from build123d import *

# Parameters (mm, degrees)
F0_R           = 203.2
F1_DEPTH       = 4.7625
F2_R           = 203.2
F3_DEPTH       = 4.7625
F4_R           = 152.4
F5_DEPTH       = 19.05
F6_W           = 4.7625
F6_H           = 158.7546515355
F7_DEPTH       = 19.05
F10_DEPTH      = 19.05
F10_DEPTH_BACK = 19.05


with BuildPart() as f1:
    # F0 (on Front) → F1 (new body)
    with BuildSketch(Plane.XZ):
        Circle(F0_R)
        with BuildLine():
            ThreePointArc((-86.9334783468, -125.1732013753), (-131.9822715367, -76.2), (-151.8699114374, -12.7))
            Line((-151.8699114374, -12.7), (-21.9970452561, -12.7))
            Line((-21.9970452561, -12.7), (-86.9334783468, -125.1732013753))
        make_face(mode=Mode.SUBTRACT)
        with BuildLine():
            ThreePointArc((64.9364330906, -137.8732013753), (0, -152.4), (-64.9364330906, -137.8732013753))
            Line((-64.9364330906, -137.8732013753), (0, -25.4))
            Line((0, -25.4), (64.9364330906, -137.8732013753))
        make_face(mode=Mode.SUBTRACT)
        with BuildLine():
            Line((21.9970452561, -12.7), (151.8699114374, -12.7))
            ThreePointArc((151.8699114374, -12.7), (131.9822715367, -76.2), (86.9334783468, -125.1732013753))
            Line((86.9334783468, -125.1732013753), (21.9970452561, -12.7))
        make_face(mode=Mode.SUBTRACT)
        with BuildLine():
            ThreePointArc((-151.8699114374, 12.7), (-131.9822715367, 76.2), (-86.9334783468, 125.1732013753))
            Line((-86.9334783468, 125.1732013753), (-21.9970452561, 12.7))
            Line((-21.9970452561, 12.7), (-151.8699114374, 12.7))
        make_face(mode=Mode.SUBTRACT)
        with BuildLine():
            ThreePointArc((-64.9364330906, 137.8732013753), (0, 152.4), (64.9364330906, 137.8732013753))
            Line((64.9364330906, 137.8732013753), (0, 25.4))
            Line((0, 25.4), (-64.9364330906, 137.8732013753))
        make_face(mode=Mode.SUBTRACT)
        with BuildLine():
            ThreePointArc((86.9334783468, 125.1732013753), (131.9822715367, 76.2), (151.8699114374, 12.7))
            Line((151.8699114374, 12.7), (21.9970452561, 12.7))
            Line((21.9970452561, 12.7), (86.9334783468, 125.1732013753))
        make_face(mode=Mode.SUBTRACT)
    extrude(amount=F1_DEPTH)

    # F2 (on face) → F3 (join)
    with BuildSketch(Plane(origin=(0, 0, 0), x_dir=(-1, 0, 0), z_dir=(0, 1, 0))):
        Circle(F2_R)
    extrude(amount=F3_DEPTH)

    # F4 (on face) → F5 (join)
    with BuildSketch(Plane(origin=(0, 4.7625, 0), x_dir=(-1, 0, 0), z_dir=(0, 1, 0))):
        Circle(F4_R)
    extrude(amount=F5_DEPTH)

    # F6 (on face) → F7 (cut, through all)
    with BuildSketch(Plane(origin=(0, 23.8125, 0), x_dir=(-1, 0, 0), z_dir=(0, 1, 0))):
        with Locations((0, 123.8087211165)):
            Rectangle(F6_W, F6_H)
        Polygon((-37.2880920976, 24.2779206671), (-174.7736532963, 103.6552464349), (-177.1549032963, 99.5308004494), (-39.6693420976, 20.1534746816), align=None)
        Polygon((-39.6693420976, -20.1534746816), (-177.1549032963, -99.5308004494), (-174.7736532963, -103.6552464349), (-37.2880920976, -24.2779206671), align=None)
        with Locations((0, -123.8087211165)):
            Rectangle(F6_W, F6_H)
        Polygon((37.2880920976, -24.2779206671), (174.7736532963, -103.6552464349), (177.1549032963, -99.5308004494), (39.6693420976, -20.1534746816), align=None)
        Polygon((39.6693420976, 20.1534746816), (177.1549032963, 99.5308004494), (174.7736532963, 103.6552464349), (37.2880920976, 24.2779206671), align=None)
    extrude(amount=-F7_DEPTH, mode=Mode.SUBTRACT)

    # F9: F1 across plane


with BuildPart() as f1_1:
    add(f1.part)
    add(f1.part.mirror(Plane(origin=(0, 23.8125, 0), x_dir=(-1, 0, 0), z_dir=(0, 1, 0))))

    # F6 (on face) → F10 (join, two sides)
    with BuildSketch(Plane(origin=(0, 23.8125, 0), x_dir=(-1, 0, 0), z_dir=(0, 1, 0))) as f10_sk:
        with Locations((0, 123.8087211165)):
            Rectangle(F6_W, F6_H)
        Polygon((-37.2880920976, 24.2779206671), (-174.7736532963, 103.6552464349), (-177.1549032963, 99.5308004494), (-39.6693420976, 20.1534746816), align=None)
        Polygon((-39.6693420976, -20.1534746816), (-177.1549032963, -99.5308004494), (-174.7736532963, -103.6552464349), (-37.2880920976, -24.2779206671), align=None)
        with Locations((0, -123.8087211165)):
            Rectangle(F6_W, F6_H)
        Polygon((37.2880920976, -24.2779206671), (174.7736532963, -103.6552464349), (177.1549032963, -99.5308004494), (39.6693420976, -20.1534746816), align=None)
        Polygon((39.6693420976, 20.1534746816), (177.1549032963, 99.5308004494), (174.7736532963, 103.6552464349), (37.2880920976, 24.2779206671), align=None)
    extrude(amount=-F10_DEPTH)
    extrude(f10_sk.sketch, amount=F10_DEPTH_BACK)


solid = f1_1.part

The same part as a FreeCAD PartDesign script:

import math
import FreeCAD as App
import Part
import Sketcher
from FreeCAD import Vector
Q = App.Units.Quantity


def add_polygon(sketch, points):
    """Adds a closed chain of lines whose ends are joined by coincident constraints."""
    first, n = sketch.GeometryCount, len(points)
    for a, b in zip(points, points[1:] + points[:1]):
        sketch.addGeometry(Part.LineSegment(App.Vector(*a, 0), App.Vector(*b, 0)), False)
    for i in range(n):
        sketch.addConstraint(Sketcher.Constraint("Coincident", first + i, 2, first + (i + 1) % n, 1))

doc = App.newDocument("Part")
body = doc.addObject("PartDesign::Body", "Body")

# Sketch on XZ plane
sketch1 = body.newObject("Sketcher::SketchObject", "Sketch")
sketch1.AttachmentSupport = (doc.getObject("XZ_Plane"), [""])
sketch1.MapMode = "FlatFace"
sketch1.addGeometry([
    Part.Circle(Vector(0, 0, 0), Vector(0, 0, 1), 203),  # 0
    Part.LineSegment(Vector(-22, -13, 0), Vector(-87, -125, 0)),  # 1
    Part.ArcOfCircle(Part.Circle(Vector(0, 0, 0), Vector(0, 0, 1), 152), math.radians(-175), math.radians(-125)),  # 2
    Part.LineSegment(Vector(-152, -13, 0), Vector(-22, -13, 0)),  # 3
    Part.LineSegment(Vector(0, -25, 0), Vector(65, -138, 0)),  # 4
    Part.ArcOfCircle(Part.Circle(Vector(0, 0, 0), Vector(0, 0, 1), 152), math.radians(-115), math.radians(-65)),  # 5
    Part.LineSegment(Vector(-65, -138, 0), Vector(0, -25, 0)),  # 6
    Part.LineSegment(Vector(87, -125, 0), Vector(22, -13, 0)),  # 7
    Part.LineSegment(Vector(22, -13, 0), Vector(152, -13, 0)),  # 8
    Part.ArcOfCircle(Part.Circle(Vector(0, 0, 0), Vector(0, 0, 1), 152), math.radians(-55), math.radians(-5)),  # 9
    Part.LineSegment(Vector(-22, 13, 0), Vector(-152, 13, 0)),  # 10
    Part.ArcOfCircle(Part.Circle(Vector(0, 0, 0), Vector(0, 0, 1), 152), math.radians(125), math.radians(175)),  # 11
    Part.LineSegment(Vector(-87, 125, 0), Vector(-22, 13, 0)),  # 12
    Part.LineSegment(Vector(22, 13, 0), Vector(87, 125, 0)),  # 13
    Part.ArcOfCircle(Part.Circle(Vector(0, 0, 0), Vector(0, 0, 1), 152), math.radians(5), math.radians(55)),  # 14
    Part.LineSegment(Vector(152, 13, 0), Vector(22, 13, 0)),  # 15
    Part.LineSegment(Vector(0, 25, 0), Vector(-65, 138, 0)),  # 16
    Part.ArcOfCircle(Part.Circle(Vector(0, 0, 0), Vector(0, 0, 1), 152), math.radians(65), math.radians(115)),  # 17
    Part.LineSegment(Vector(65, 138, 0), Vector(0, 25, 0)),  # 18
], False)
sketch1.addConstraint([
    Sketcher.Constraint("Coincident", 1, 2, 2, 2),
    Sketcher.Constraint("Coincident", 2, 1, 3, 1),
    Sketcher.Constraint("Coincident", 3, 2, 1, 1),
    Sketcher.Constraint("Coincident", 4, 2, 5, 2),
    Sketcher.Constraint("Coincident", 5, 1, 6, 1),
    Sketcher.Constraint("Coincident", 6, 2, 4, 1),
    Sketcher.Constraint("Coincident", 7, 2, 8, 1),
    Sketcher.Constraint("Coincident", 8, 2, 9, 2),
    Sketcher.Constraint("Coincident", 9, 1, 7, 1),
    Sketcher.Constraint("Coincident", 10, 2, 11, 2),
    Sketcher.Constraint("Coincident", 11, 1, 12, 1),
    Sketcher.Constraint("Coincident", 12, 2, 10, 1),
    Sketcher.Constraint("Coincident", 13, 2, 14, 2),
    Sketcher.Constraint("Coincident", 14, 1, 15, 1),
    Sketcher.Constraint("Coincident", 15, 2, 13, 1),
    Sketcher.Constraint("Coincident", 16, 2, 17, 2),
    Sketcher.Constraint("Coincident", 17, 1, 18, 1),
    Sketcher.Constraint("Coincident", 18, 2, 16, 1),
    Sketcher.Constraint("Horizontal", 3),
    Sketcher.Constraint("Horizontal", 8),
    Sketcher.Constraint("Horizontal", 10),
    Sketcher.Constraint("Horizontal", 15),
    Sketcher.Constraint("Coincident", 0, 3, -1, 1),
    Sketcher.Constraint("Coincident", 2, 3, -1, 1),
    Sketcher.Constraint("Coincident", 5, 3, -1, 1),
    Sketcher.Constraint("Coincident", 9, 3, -1, 1),
    Sketcher.Constraint("Coincident", 11, 3, -1, 1),
    Sketcher.Constraint("Coincident", 14, 3, -1, 1),
    Sketcher.Constraint("Coincident", 17, 3, -1, 1),
    Sketcher.Constraint("Equal", 2, 5),
    Sketcher.Constraint("Equal", 5, 9),
    Sketcher.Constraint("Equal", 9, 11),
    Sketcher.Constraint("Equal", 11, 14),
    Sketcher.Constraint("Equal", 14, 17),
    Sketcher.Constraint("Symmetric", 7, 2, 12, 2, -1, 1),
    Sketcher.Constraint("Symmetric", 3, 2, 15, 2, -1, 1),
    Sketcher.Constraint("Symmetric", 6, 2, 18, 2, -1, 1),
    Sketcher.Constraint("Symmetric", 3, 2, 7, 2, -2),
    Sketcher.Constraint("PointOnObject", 6, 2, -2),
    Sketcher.Constraint("Parallel", 1, 6),
    Sketcher.Constraint("Parallel", 4, 7),
    Sketcher.Constraint("Parallel", 7, 12),
    Sketcher.Constraint("Parallel", 6, 13),
    Sketcher.Constraint("Parallel", 12, 16),
    Sketcher.Constraint("Parallel", 13, 18),
    Sketcher.Constraint("Horizontal", 4, 2, 5, 1),
    Sketcher.Constraint("Equal", 1, 4),
    Sketcher.Constraint("Diameter", 0, Q("16 in")),
    Sketcher.Constraint("Radius", 2, Q("6 in")),
    Sketcher.Constraint("DistanceY", 6, 2, -1, 1, Q("1 in")),
    Sketcher.Constraint("Angle", 1, Q("-120 deg")),
    Sketcher.Constraint("DistanceY", 2, 1, 10, 2, Q("1 in")),
])
pad1 = body.newObject("PartDesign::Pad", "Pad")
pad1.Profile = sketch1
pad1.Length = Q("0.1875 in")

# Sketch on XZ plane
sketch2 = body.newObject("Sketcher::SketchObject", "Sketch001")
sketch2.AttachmentSupport = (doc.getObject("XZ_Plane"), [""])
sketch2.MapMode = "FlatFace"
sketch2.addGeometry(Part.Circle(Vector(0, 0, 0), Vector(0, 0, 1), 203), False)
sketch2.addConstraint([
    Sketcher.Constraint("Coincident", 0, 3, -1, 1),
    Sketcher.Constraint("Diameter", 0, Q("16 in")),
])
pad2 = body.newObject("PartDesign::Pad", "Pad001")
pad2.Profile = sketch2
pad2.Length = Q("0.1875 in")
pad2.Reversed = True

# Sketch on XZ plane
sketch3 = body.newObject("Sketcher::SketchObject", "Sketch002")
sketch3.AttachmentSupport = (doc.getObject("XZ_Plane"), [""])
sketch3.MapMode = "FlatFace"
sketch3.AttachmentOffset = App.Placement(Vector(0, 0, -0.1875 * 25.4), App.Rotation())
sketch3.addGeometry(Part.Circle(Vector(0, 0, 0), Vector(0, 0, 1), 152), False)
sketch3.addConstraint([
    Sketcher.Constraint("Coincident", 0, 3, -1, 1),
    Sketcher.Constraint("Diameter", 0, Q("12 in")),
])
pad3 = body.newObject("PartDesign::Pad", "Pad002")
pad3.Profile = sketch3
pad3.Length = Q("0.75 in")
pad3.Reversed = True

# Sketch on XZ plane
sketch4 = body.newObject("Sketcher::SketchObject", "Sketch003")
sketch4.AttachmentSupport = (doc.getObject("XZ_Plane"), [""])
sketch4.MapMode = "FlatFace"
sketch4.AttachmentOffset = App.Placement(Vector(0, 0, -0.9375 * 25.4), App.Rotation())
add_polygon(sketch4, [(2.4, 203.2), (2.4, 44.4), (-2.4, 44.4), (-2.4, 203.2)])  # lines 0-3
add_polygon(sketch4, [(37.3, 24.3), (174.8, 103.7), (177.2, 99.5), (39.7, 20.2)])  # lines 4-7
add_polygon(sketch4, [(39.7, -20.2), (177.2, -99.5), (174.8, -103.7), (37.3, -24.3)])  # lines 8-11
add_polygon(sketch4, [(2.4, -44.4), (2.4, -203.2), (-2.4, -203.2), (-2.4, -44.4)])  # lines 12-15
add_polygon(sketch4, [(-37.3, -24.3), (-174.8, -103.7), (-177.2, -99.5), (-39.7, -20.2)])  # lines 16-19
add_polygon(sketch4, [(-39.7, 20.2), (-177.2, 99.5), (-174.8, 103.7), (-37.3, 24.3)])  # lines 20-23
sketch4.addConstraint([
    Sketcher.Constraint("Vertical", 0),
    Sketcher.Constraint("Horizontal", 1),
    Sketcher.Constraint("Vertical", 2),
    Sketcher.Constraint("Horizontal", 3),
    Sketcher.Constraint("Vertical", 12),
    Sketcher.Constraint("Horizontal", 13),
    Sketcher.Constraint("Vertical", 14),
    Sketcher.Constraint("Horizontal", 15),
    Sketcher.Constraint("Symmetric", 2, 2, 12, 2, -1, 1),
    Sketcher.Constraint("Symmetric", 0, 2, 14, 2, -1, 1),
    Sketcher.Constraint("Symmetric", 4, 2, 16, 2, -1, 1),
    Sketcher.Constraint("Symmetric", 5, 2, 17, 2, -1, 1),
    Sketcher.Constraint("Symmetric", 6, 2, 18, 2, -1, 1),
    Sketcher.Constraint("Symmetric", 7, 2, 19, 2, -1, 1),
    Sketcher.Constraint("Symmetric", 8, 2, 20, 2, -1, 1),
    Sketcher.Constraint("Symmetric", 9, 2, 21, 2, -1, 1),
    Sketcher.Constraint("Symmetric", 10, 2, 22, 2, -1, 1),
    Sketcher.Constraint("Symmetric", 11, 2, 23, 2, -1, 1),
    Sketcher.Constraint("Symmetric", 9, 2, 16, 2, -2),
    Sketcher.Constraint("Symmetric", 8, 2, 17, 2, -2),
    Sketcher.Constraint("Symmetric", 11, 2, 18, 2, -2),
    Sketcher.Constraint("Symmetric", 10, 2, 19, 2, -2),
    Sketcher.Constraint("Perpendicular", 4, 5),
    Sketcher.Constraint("Perpendicular", 5, 6),
    Sketcher.Constraint("Perpendicular", 6, 7),
    Sketcher.Constraint("Vertical", 3, 2, 12, 2),
    Sketcher.Constraint("Angle", 4, Q("30 deg")),
    Sketcher.Constraint("DistanceX", 1, 2, 1, 1, Q("0.1875 in")),
    Sketcher.Constraint("Distance", 5, Q("0.1875 in")),
    Sketcher.Constraint("DistanceY", 0, 2, 0, 1, Q("158.754652 mm")),
    Sketcher.Constraint("DistanceY", -1, 1, 5, 2, Q("99.5308 mm")),
    Sketcher.Constraint("DistanceY", 4, 2, 3, 2, Q("99.5308 mm")),
    Sketcher.Constraint("Distance", 4, Q("158.754652 mm")),
    Sketcher.Constraint("DistanceX", -1, 1, 4, 2, Q("174.773653 mm")),
])
pocket1 = body.newObject("PartDesign::Pocket", "Pocket")
pocket1.Profile = sketch4
pocket1.Length = Q("0.75 in")
pocket1.Reversed = True
body2 = doc.addObject("PartDesign::Body", "Body001")
doc.recompute()

body2.BaseFeature = body
doc.recompute()

mirroring = doc.addObject("Part::Mirroring", "Mirroring")
mirroring.Source = body
mirroring.Base = Vector(0, 23.8125, 0)
mirroring.Normal = Vector(0, 1, 0)
body3 = doc.addObject("PartDesign::Body", "Body002")
body3.BaseFeature = mirroring
boolean = body2.newObject("PartDesign::Boolean", "Boolean")
boolean.Type = "Fuse"
boolean.addObjects([body3])
doc.recompute()

# Sketch on XZ plane
sketch5 = body2.newObject("Sketcher::SketchObject", "Sketch004")
sketch5.AttachmentSupport = (doc.getObject("XZ_Plane001"), [""])
sketch5.MapMode = "FlatFace"
sketch5.AttachmentOffset = App.Placement(Vector(0, 0, -0.9375 * 25.4), App.Rotation())
add_polygon(sketch5, [(2.4, 203.2), (2.4, 44.4), (-2.4, 44.4), (-2.4, 203.2)])  # lines 0-3
add_polygon(sketch5, [(37.3, 24.3), (174.8, 103.7), (177.2, 99.5), (39.7, 20.2)])  # lines 4-7
add_polygon(sketch5, [(39.7, -20.2), (177.2, -99.5), (174.8, -103.7), (37.3, -24.3)])  # lines 8-11
add_polygon(sketch5, [(2.4, -44.4), (2.4, -203.2), (-2.4, -203.2), (-2.4, -44.4)])  # lines 12-15
add_polygon(sketch5, [(-37.3, -24.3), (-174.8, -103.7), (-177.2, -99.5), (-39.7, -20.2)])  # lines 16-19
add_polygon(sketch5, [(-39.7, 20.2), (-177.2, 99.5), (-174.8, 103.7), (-37.3, 24.3)])  # lines 20-23
sketch5.addConstraint([
    Sketcher.Constraint("Vertical", 0),
    Sketcher.Constraint("Horizontal", 1),
    Sketcher.Constraint("Vertical", 2),
    Sketcher.Constraint("Horizontal", 3),
    Sketcher.Constraint("Vertical", 12),
    Sketcher.Constraint("Horizontal", 13),
    Sketcher.Constraint("Vertical", 14),
    Sketcher.Constraint("Horizontal", 15),
    Sketcher.Constraint("Symmetric", 2, 2, 12, 2, -1, 1),
    Sketcher.Constraint("Symmetric", 0, 2, 14, 2, -1, 1),
    Sketcher.Constraint("Symmetric", 4, 2, 16, 2, -1, 1),
    Sketcher.Constraint("Symmetric", 5, 2, 17, 2, -1, 1),
    Sketcher.Constraint("Symmetric", 6, 2, 18, 2, -1, 1),
    Sketcher.Constraint("Symmetric", 7, 2, 19, 2, -1, 1),
    Sketcher.Constraint("Symmetric", 8, 2, 20, 2, -1, 1),
    Sketcher.Constraint("Symmetric", 9, 2, 21, 2, -1, 1),
    Sketcher.Constraint("Symmetric", 10, 2, 22, 2, -1, 1),
    Sketcher.Constraint("Symmetric", 11, 2, 23, 2, -1, 1),
    Sketcher.Constraint("Symmetric", 9, 2, 16, 2, -2),
    Sketcher.Constraint("Symmetric", 8, 2, 17, 2, -2),
    Sketcher.Constraint("Symmetric", 11, 2, 18, 2, -2),
    Sketcher.Constraint("Symmetric", 10, 2, 19, 2, -2),
    Sketcher.Constraint("Perpendicular", 4, 5),
    Sketcher.Constraint("Perpendicular", 5, 6),
    Sketcher.Constraint("Perpendicular", 6, 7),
    Sketcher.Constraint("Vertical", 3, 2, 12, 2),
    Sketcher.Constraint("Angle", 4, Q("30 deg")),
    Sketcher.Constraint("DistanceX", 1, 2, 1, 1, Q("0.1875 in")),
    Sketcher.Constraint("Distance", 5, Q("0.1875 in")),
    Sketcher.Constraint("DistanceY", 0, 2, 0, 1, Q("158.754652 mm")),
    Sketcher.Constraint("DistanceY", -1, 1, 5, 2, Q("99.5308 mm")),
    Sketcher.Constraint("DistanceY", 4, 2, 3, 2, Q("99.5308 mm")),
    Sketcher.Constraint("Distance", 4, Q("158.754652 mm")),
    Sketcher.Constraint("DistanceX", -1, 1, 4, 2, Q("174.773653 mm")),
])
pad4 = body2.newObject("PartDesign::Pad", "Pad003")
pad4.Profile = sketch5
pad4.Type = "TwoLengths"
pad4.Length = Q("0.75 in")
pad4.Length2 = Q("0.75 in")
mirroring.Visibility = False

doc.recompute()
